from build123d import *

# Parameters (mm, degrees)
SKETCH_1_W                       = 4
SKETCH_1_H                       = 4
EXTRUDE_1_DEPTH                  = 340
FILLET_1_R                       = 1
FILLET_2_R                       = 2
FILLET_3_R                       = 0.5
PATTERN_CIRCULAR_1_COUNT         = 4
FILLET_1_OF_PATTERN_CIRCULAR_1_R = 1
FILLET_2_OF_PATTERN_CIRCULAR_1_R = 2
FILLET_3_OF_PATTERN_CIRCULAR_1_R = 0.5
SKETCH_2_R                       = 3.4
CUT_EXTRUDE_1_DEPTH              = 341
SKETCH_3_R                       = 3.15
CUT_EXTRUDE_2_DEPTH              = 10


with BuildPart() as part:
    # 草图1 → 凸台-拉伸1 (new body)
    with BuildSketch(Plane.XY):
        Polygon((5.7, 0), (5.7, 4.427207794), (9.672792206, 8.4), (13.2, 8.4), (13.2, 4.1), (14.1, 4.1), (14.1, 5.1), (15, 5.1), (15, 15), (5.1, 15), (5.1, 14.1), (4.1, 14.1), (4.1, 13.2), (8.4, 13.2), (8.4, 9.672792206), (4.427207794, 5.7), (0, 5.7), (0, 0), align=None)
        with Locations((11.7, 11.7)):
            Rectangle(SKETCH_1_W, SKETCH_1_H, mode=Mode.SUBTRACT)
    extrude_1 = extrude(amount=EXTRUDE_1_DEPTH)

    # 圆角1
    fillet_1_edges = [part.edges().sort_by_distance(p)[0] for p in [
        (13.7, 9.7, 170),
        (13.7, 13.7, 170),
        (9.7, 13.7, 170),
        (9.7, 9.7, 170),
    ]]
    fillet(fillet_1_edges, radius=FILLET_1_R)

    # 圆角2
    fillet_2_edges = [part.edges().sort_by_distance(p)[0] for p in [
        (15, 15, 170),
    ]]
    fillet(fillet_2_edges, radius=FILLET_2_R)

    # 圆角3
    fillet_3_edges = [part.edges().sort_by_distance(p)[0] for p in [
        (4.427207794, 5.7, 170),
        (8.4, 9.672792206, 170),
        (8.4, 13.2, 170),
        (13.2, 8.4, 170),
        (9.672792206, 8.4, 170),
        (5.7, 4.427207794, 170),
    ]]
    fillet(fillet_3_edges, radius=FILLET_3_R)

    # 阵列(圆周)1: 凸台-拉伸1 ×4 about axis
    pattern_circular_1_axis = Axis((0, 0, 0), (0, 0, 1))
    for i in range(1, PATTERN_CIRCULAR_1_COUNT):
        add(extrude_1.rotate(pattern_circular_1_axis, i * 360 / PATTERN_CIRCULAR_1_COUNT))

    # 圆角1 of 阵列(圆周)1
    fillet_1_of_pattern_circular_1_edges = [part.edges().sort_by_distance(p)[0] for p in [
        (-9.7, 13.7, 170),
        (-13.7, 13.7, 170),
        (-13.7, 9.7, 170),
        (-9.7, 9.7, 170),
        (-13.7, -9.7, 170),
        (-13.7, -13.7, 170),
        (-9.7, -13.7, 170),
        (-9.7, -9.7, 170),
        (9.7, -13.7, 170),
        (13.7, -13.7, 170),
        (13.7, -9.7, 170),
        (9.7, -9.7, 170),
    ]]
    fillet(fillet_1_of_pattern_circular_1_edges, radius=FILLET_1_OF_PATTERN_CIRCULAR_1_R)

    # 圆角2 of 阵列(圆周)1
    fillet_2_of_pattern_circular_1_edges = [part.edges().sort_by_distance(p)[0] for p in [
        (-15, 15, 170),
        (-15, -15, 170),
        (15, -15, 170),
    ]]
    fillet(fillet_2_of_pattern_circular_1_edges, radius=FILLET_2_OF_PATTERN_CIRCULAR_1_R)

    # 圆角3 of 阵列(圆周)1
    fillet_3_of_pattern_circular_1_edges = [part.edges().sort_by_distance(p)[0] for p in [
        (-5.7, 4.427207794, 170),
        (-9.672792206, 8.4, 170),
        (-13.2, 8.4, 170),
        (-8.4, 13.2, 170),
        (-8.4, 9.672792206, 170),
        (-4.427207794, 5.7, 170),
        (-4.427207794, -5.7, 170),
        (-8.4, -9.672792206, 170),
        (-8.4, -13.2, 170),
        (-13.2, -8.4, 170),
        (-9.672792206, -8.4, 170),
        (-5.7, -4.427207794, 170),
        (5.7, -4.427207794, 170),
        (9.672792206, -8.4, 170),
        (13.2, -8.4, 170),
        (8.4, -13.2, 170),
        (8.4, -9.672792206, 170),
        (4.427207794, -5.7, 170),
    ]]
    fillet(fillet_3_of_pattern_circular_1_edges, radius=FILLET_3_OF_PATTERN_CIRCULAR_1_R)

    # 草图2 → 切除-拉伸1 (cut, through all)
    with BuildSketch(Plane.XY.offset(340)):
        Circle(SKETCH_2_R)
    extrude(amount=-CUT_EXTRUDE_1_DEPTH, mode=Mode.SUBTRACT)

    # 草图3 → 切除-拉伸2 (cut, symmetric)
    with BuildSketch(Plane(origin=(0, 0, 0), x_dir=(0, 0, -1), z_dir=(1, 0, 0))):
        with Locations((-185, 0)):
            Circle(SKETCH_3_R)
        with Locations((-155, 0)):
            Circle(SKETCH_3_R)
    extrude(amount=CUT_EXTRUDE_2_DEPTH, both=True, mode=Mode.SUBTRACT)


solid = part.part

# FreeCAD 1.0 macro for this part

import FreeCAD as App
import Part
import Sketcher

V = App.Vector
Q = App.Units.Quantity


def edges_at(feature, points):
    """Names of the edges that pass closest to the given points."""
    edges = feature.Shape.Edges
    near = lambda p: min(range(len(edges)), key=lambda i: edges[i].distToShape(Part.Vertex(*p))[0])
    return sorted({f"Edge{near(p) + 1}" for p in points})


def add_polygon(sketch, points):
    """Adds a closed chain of lines whose ends are joined by coincident constraints."""
    first, n = sketch.GeometryCount, len(points)
    for a, b in zip(points, points[1:] + points[:1]):
        sketch.addGeometry(Part.LineSegment(App.Vector(*a, 0), App.Vector(*b, 0)), False)
    for i in range(n):
        sketch.addConstraint(Sketcher.Constraint("Coincident", first + i, 2, first + (i + 1) % n, 1))

doc = App.newDocument("Part")
params = doc.addObject("Spreadsheet::Sheet", "Params")
for row, (alias, value) in enumerate([
    ("sketch1_width", "1 mm"),
    ("sketch1_width2", "4 mm"),
    ("sketch1_width3", "0.9 mm"),
    ("sketch1_width4", "9.9 mm"),
    ("sketch1_width5", "4.3 mm"),
    ("pad1_length", "340 mm"),
    ("fillet_radius", "1 mm"),
    ("fillet2_radius", "2 mm"),
    ("fillet3_radius", "0.5 mm"),
    ("fillet4_radius", "1 mm"),
    ("fillet5_radius", "2 mm"),
    ("fillet6_radius", "0.5 mm"),
    ("sketch2_diameter", "6.8 mm"),
    ("sketch3_diameter", "6.3 mm"),
    ("pocket2_length", "20 mm"),
], start=1):
    params.set(f"A{row}", alias)
    params.set(f"B{row}", "=" + value)
    params.setAlias(f"B{row}", alias)

body = doc.addObject("PartDesign::Body", "Body")

# Sketch on XY plane
sketch1 = body.newObject("Sketcher::SketchObject", "Sketch")
sketch1.AttachmentSupport = (doc.getObject("XY_Plane"), [""])
sketch1.MapMode = "FlatFace"
add_polygon(sketch1, [(5.7, 0), (5.7, 4.4), (9.7, 8.4), (13.2, 8.4), (13.2, 4.1), (14.1, 4.1), (14.1, 5.1), (15, 5.1), (15, 15), (5.1, 15), (5.1, 14.1), (4.1, 14.1), (4.1, 13.2), (8.4, 13.2), (8.4, 9.7), (4.4, 5.7), (0, 5.7), (0, 0)])  # lines 0-17
add_polygon(sketch1, [(13.7, 9.7), (9.7, 9.7), (9.7, 13.7), (13.7, 13.7)])  # lines 18-21
sketch1.addConstraint([
    Sketcher.Constraint("Vertical", 0),
    Sketcher.Constraint("Horizontal", 2),
    Sketcher.Constraint("Vertical", 3),
    Sketcher.Constraint("Horizontal", 4),
    Sketcher.Constraint("Vertical", 5),
    Sketcher.Constraint("Horizontal", 6),
    Sketcher.Constraint("Vertical", 7),
    Sketcher.Constraint("Horizontal", 8),
    Sketcher.Constraint("Vertical", 9),
    Sketcher.Constraint("Horizontal", 10),
    Sketcher.Constraint("Vertical", 11),
    Sketcher.Constraint("Horizontal", 12),
    Sketcher.Constraint("Vertical", 13),
    Sketcher.Constraint("Horizontal", 15),
    Sketcher.Constraint("Vertical", 16),
    Sketcher.Constraint("Horizontal", 17),
    Sketcher.Constraint("Horizontal", 18),
    Sketcher.Constraint("Vertical", 19),
    Sketcher.Constraint("Horizontal", 20),
    Sketcher.Constraint("Vertical", 21),
    Sketcher.Constraint("Coincident", 16, 2, -1, 1),
    Sketcher.Constraint("Parallel", 1, 14),
    Sketcher.Constraint("Equal", 4, 6),
    Sketcher.Constraint("Equal", 15, 0),
    Sketcher.Constraint("Equal", 12, 3),
    Sketcher.Constraint("Equal", 10, 5),
    Sketcher.Constraint("Equal", 8, 7),
    Sketcher.Constraint("Equal", 6, 9),
    Sketcher.Constraint("Equal", 9, 11),
    Sketcher.Constraint("Equal", 2, 13),
    Sketcher.Constraint("Equal", 17, 16),
    Sketcher.Constraint("Equal", 20, 19),
    Sketcher.Constraint("DistanceX", 10, 2, 10, 1, Q("1 mm")),
    Sketcher.Constraint("DistanceX", 18, 2, 18, 1, Q("4 mm")),
    Sketcher.Constraint("Angle", 1, Q("45 deg")),
    Sketcher.Constraint("DistanceX", 4, 1, 4, 2, Q("0.9 mm")),
    Sketcher.Constraint("DistanceX", 8, 2, 8, 1, Q("9.9 mm")),
    Sketcher.Constraint("DistanceX", 12, 1, 12, 2, Q("4.3 mm")),
    Sketcher.Constraint("DistanceX", 17, 1, 17, 2, Q("5.7 mm")),
    Sketcher.Constraint("DistanceX", -1, 1, 6, 2, Q("15 mm")),
    Sketcher.Constraint("DistanceX", -1, 1, 18, 2, Q("9.7 mm")),
    Sketcher.Constraint("DistanceY", -1, 1, 18, 2, Q("9.7 mm")),
    Sketcher.Constraint("DistanceX", 2, 1, 2, 2, Q("3.527208 mm")),
])
sketch1.setExpression("Constraints[54]", "Params.sketch1_width")
sketch1.setExpression("Constraints[55]", "Params.sketch1_width2")
sketch1.setExpression("Constraints[57]", "Params.sketch1_width3")
sketch1.setExpression("Constraints[58]", "Params.sketch1_width4")
sketch1.setExpression("Constraints[59]", "Params.sketch1_width5")
pad1 = body.newObject("PartDesign::Pad", "Pad")
pad1.Profile = sketch1
pad1.setExpression("Length", "Params.pad1_length")
doc.recompute()

fillet = body.newObject("PartDesign::Fillet", "Fillet")
fillet.Base = (pad1, edges_at(pad1, [
    (13.7, 9.7, 170),
    (13.7, 13.7, 170),
    (9.7, 13.7, 170),
    (9.7, 9.7, 170),
]))
fillet.setExpression("Radius", "Params.fillet_radius")
doc.recompute()

fillet2 = body.newObject("PartDesign::Fillet", "Fillet001")
fillet2.Base = (fillet, edges_at(fillet, [(15, 15, 170)]))
fillet2.setExpression("Radius", "Params.fillet2_radius")
doc.recompute()

fillet3 = body.newObject("PartDesign::Fillet", "Fillet002")
fillet3.Base = (fillet2, edges_at(fillet2, [
    (4.427, 5.7, 170),
    (8.4, 9.673, 170),
    (8.4, 13.2, 170),
    (13.2, 8.4, 170),
    (9.673, 8.4, 170),
    (5.7, 4.427, 170),
]))
fillet3.setExpression("Radius", "Params.fillet3_radius")
doc.recompute()

polarpattern = body.newObject("PartDesign::PolarPattern", "PolarPattern")
polarpattern.Originals = [pad1]
polarpattern.Axis = (doc.getObject("Z_Axis"), [""])
polarpattern.Angle = 360
polarpattern.Occurrences = 4
body.Tip = polarpattern
doc.recompute()

fillet4 = body.newObject("PartDesign::Fillet", "Fillet003")
fillet4.Base = (polarpattern, edges_at(polarpattern, [
    (-9.7, 13.7, 170),
    (-13.7, 13.7, 170),
    (-13.7, 9.7, 170),
    (-9.7, 9.7, 170),
    (-13.7, -9.7, 170),
    (-13.7, -13.7, 170),
    (-9.7, -13.7, 170),
    (-9.7, -9.7, 170),
    (9.7, -13.7, 170),
    (13.7, -13.7, 170),
    (13.7, -9.7, 170),
    (9.7, -9.7, 170),
]))
fillet4.setExpression("Radius", "Params.fillet4_radius")
doc.recompute()

fillet5 = body.newObject("PartDesign::Fillet", "Fillet004")
fillet5.Base = (fillet4, edges_at(fillet4, [(-15, 15, 170), (-15, -15, 170), (15, -15, 170)]))
fillet5.setExpression("Radius", "Params.fillet5_radius")
doc.recompute()

fillet6 = body.newObject("PartDesign::Fillet", "Fillet005")
fillet6.Base = (fillet5, edges_at(fillet5, [
    (-5.7, 4.427, 170),
    (-9.673, 8.4, 170),
    (-13.2, 8.4, 170),
    (-8.4, 13.2, 170),
    (-8.4, 9.673, 170),
    (-4.427, 5.7, 170),
    (-4.427, -5.7, 170),
    (-8.4, -9.673, 170),
    (-8.4, -13.2, 170),
    (-13.2, -8.4, 170),
    (-9.673, -8.4, 170),
    (-5.7, -4.427, 170),
    (5.7, -4.427, 170),
    (9.673, -8.4, 170),
    (13.2, -8.4, 170),
    (8.4, -13.2, 170),
    (8.4, -9.673, 170),
    (4.427, -5.7, 170),
]))
fillet6.setExpression("Radius", "Params.fillet6_radius")

# Sketch on XY plane
sketch2 = body.newObject("Sketcher::SketchObject", "Sketch001")
sketch2.AttachmentSupport = (doc.getObject("XY_Plane"), [""])
sketch2.MapMode = "FlatFace"
sketch2.AttachmentOffset = App.Placement(V(0, 0, 340), App.Rotation())
sketch2.addGeometry(Part.Circle(V(0, 0, 0), V(0, 0, 1), 3.4), False)
sketch2.addConstraint([
    Sketcher.Constraint("Coincident", 0, 3, -1, 1),
    Sketcher.Constraint("Diameter", 0, Q("6.8 mm")),
])
sketch2.setExpression("Constraints[1]", "Params.sketch2_diameter")
pocket1 = body.newObject("PartDesign::Pocket", "Pocket")
pocket1.Profile = sketch2
pocket1.Type = "ThroughAll"

# Sketch on YZ plane
sketch3 = body.newObject("Sketcher::SketchObject", "Sketch002")
sketch3.AttachmentSupport = (doc.getObject("YZ_Plane"), [""])
sketch3.MapMode = "FlatFace"
sketch3.addGeometry([
    Part.Circle(V(0, 185, 0), V(0, 0, 1), 3.1),
    Part.Circle(V(0, 155, 0), V(0, 0, 1), 3.1),
], False)
sketch3.addConstraint([
    Sketcher.Constraint("Equal", 0, 1),
    Sketcher.Constraint("PointOnObject", 0, 3, -2),
    Sketcher.Constraint("PointOnObject", 1, 3, -2),
    Sketcher.Constraint("Diameter", 0, Q("6.3 mm")),
    Sketcher.Constraint("DistanceY", -1, 1, 0, 3, Q("185 mm")),
    Sketcher.Constraint("DistanceY", -1, 1, 1, 3, Q("155 mm")),
])
sketch3.setExpression("Constraints[3]", "Params.sketch3_diameter")
pocket2 = body.newObject("PartDesign::Pocket", "Pocket001")
pocket2.Profile = sketch3
pocket2.setExpression("Length", "Params.pocket2_length")
pocket2.Midplane = True

doc.recompute()
